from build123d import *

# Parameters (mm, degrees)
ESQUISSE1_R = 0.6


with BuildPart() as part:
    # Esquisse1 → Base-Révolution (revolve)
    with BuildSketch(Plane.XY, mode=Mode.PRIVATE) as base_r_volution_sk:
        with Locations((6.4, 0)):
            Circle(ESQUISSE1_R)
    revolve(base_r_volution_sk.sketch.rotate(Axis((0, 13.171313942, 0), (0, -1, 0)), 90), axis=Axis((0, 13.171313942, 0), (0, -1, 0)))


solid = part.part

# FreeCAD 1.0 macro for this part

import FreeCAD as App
import Part
import Sketcher

V = App.Vector
Q = App.Units.Quantity

doc = App.newDocument("Part")
body = doc.addObject("PartDesign::Body", "Body")

sketch1 = doc.addObject("Sketcher::SketchObject", "Sketch")
body.addObject(sketch1)
sketch1.AttachmentSupport = (doc.XY_Plane, [""])
sketch1.MapMode = "FlatFace"
sketch1.addGeometry(Part.Circle(V(6.4, 0, 0), V(0, 0, 1), 0.6), False)
sketch1.addConstraint([
    Sketcher.Constraint("PointOnObject", 0, 3, -1),
    Sketcher.Constraint("Diameter", 0, Q("1.2 mm")),
    Sketcher.Constraint("DistanceX", -1, 1, 0, 3, Q("6.4 mm")),
])
revolution = doc.addObject("PartDesign::Revolution", "Revolution")
body.addObject(revolution)
revolution.Profile = sketch1
revolution.ReferenceAxis = (sketch1, ["V_Axis"])
revolution.Angle = 360

doc.recompute()
